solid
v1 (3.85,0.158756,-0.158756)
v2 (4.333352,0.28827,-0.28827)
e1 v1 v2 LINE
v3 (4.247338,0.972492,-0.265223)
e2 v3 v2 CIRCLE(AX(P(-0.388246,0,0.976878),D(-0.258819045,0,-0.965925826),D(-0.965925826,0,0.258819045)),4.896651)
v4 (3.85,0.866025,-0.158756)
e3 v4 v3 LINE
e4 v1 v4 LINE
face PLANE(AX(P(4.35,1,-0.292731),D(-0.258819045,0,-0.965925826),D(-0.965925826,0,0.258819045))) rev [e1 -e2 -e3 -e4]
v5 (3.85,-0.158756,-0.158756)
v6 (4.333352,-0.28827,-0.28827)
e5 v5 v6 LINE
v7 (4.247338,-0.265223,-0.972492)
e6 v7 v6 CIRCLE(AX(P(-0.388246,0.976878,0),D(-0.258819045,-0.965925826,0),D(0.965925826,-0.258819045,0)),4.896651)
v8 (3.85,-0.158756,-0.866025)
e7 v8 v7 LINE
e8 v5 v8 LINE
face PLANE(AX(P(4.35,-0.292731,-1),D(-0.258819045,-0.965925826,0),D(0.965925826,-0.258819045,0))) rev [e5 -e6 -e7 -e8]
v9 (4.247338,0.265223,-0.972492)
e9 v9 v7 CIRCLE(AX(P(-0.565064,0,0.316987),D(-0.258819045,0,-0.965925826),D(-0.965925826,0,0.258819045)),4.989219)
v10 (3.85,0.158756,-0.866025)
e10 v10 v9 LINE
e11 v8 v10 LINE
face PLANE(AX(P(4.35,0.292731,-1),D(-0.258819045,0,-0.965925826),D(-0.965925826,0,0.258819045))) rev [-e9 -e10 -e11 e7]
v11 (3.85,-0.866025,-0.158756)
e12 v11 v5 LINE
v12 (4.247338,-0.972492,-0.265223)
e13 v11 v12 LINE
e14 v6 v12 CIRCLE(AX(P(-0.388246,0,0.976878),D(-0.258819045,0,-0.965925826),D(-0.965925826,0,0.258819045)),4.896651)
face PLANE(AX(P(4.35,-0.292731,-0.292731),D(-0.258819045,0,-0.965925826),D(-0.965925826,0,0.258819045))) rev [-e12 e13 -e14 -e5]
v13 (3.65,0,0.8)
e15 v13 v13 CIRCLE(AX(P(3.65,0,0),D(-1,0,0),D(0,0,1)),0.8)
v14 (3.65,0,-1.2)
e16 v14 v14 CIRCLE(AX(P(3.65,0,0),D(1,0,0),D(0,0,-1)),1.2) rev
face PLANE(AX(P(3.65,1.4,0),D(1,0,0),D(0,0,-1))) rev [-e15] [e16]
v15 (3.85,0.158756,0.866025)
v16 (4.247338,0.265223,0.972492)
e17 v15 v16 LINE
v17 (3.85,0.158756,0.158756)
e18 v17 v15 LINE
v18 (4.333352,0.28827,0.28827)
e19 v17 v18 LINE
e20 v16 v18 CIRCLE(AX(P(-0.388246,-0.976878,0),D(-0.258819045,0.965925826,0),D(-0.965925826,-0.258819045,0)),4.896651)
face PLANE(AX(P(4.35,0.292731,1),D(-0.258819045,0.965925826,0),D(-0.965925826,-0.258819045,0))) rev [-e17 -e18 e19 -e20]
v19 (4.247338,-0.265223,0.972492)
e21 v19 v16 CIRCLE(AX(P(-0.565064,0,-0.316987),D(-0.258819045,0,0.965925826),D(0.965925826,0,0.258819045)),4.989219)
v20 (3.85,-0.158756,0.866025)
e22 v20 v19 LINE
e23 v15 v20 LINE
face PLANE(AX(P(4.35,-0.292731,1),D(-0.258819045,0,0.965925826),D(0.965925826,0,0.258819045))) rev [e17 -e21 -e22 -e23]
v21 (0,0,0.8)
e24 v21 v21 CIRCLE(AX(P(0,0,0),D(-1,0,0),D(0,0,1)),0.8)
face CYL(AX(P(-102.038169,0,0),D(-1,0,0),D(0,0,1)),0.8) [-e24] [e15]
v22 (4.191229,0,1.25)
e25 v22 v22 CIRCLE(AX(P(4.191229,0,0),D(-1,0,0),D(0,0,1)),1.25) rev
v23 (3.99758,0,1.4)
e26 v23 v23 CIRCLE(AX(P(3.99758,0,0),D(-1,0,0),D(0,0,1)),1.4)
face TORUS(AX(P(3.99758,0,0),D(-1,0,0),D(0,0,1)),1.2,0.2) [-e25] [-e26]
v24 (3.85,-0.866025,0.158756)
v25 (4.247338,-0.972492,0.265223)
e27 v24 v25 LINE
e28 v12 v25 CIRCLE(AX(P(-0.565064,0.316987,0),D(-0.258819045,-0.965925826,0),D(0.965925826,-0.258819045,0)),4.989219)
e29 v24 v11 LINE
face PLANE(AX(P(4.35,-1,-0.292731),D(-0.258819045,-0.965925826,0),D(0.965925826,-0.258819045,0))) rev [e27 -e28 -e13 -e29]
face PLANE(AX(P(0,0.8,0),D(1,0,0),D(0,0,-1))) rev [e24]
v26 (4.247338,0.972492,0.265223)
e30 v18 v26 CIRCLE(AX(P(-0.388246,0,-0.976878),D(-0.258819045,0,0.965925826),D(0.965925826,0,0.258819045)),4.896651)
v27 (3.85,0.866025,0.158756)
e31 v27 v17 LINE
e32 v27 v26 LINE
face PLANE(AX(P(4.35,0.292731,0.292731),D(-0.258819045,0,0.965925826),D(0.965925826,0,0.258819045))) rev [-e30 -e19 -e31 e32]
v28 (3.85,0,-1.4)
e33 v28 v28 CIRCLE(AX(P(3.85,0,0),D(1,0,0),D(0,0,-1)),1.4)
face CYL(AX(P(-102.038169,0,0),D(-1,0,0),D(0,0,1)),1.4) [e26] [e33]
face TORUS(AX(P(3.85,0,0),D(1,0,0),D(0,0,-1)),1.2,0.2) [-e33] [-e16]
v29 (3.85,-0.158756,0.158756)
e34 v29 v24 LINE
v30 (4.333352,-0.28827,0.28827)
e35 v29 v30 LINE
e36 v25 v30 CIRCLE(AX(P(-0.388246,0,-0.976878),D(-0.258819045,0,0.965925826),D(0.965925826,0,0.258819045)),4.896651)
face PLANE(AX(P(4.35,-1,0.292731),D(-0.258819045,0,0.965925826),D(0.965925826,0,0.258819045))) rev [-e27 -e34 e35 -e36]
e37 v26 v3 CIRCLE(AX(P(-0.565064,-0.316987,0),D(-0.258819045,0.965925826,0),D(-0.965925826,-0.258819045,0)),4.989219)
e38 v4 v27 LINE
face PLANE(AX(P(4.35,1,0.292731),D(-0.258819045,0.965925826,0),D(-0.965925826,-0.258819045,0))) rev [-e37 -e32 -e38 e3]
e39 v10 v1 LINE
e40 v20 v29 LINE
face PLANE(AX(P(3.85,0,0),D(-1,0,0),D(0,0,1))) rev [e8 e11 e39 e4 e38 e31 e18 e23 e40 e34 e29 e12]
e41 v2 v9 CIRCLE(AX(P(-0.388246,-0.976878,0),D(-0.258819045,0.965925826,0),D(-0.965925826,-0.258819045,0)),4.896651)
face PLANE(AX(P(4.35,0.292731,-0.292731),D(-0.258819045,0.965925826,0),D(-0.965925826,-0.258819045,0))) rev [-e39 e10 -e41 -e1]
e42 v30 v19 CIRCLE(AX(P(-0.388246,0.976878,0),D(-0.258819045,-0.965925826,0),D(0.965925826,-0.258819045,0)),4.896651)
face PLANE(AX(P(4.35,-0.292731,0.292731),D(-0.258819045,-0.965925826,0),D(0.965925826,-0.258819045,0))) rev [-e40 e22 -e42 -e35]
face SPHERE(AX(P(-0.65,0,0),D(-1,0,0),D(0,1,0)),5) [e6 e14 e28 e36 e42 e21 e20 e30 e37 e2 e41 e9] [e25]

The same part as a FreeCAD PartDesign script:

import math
import FreeCAD as App
import Part
import Sketcher


def edges_at(feature, points):
    """Names of the edges that pass closest to the given points."""
    edges = feature.Shape.Edges
    near = lambda p: min(range(len(edges)), key=lambda i: edges[i].distToShape(Part.Vertex(*p))[0])
    return sorted({f"Edge{near(p) + 1}" for p in points})


def add_polygon(sketch, points):
    """Adds a closed chain of lines whose ends are joined by coincident constraints."""
    first, n = sketch.GeometryCount, len(points)
    for a, b in zip(points, points[1:] + points[:1]):
        sketch.addGeometry(Part.LineSegment(App.Vector(*a, 0), App.Vector(*b, 0)), False)
    for i in range(n):
        sketch.addConstraint(Sketcher.Constraint("Coincident", first + i, 2, first + (i + 1) % n, 1))

doc = App.newDocument("Part")
body = doc.addObject("PartDesign::Body", "Body")

# Sketch on XY plane
sketch1 = body.newObject("Sketcher::SketchObject", "Sketch")
sketch1.AttachmentSupport = (doc.getObject("XY_Plane"), [""])
sketch1.MapMode = "FlatFace"
sketch1.addGeometry([
    Part.LineSegment(App.Vector(0, 0, 0), App.Vector(4.3, 0, 0)),  # 0
    Part.ArcOfCircle(Part.Circle(App.Vector(-0.7, 0, 0), App.Vector(0, 0, 1), 5), math.radians(0), math.radians(16.26)),  # 1
    Part.LineSegment(App.Vector(4.2, 1.4, 0), App.Vector(3.6, 1.4, 0)),  # 2
    Part.LineSegment(App.Vector(3.6, 1.4, 0), App.Vector(3.6, 0.8, 0)),  # 3
    Part.LineSegment(App.Vector(3.6, 0.8, 0), App.Vector(0, 0.8, 0)),  # 4
    Part.LineSegment(App.Vector(0, 0.8, 0), App.Vector(0, 0, 0)),  # 5
], False)
sketch1.addConstraint([
    Sketcher.Constraint("Coincident", 0, 2, 1, 1),
    Sketcher.Constraint("Coincident", 1, 2, 2, 1),
    Sketcher.Constraint("Coincident", 2, 2, 3, 1),
    Sketcher.Constraint("Coincident", 3, 2, 4, 1),
    Sketcher.Constraint("Coincident", 4, 2, 5, 1),
    Sketcher.Constraint("Coincident", 5, 2, 0, 1),
    Sketcher.Constraint("Horizontal", 0),
    Sketcher.Constraint("Horizontal", 2),
    Sketcher.Constraint("Vertical", 3),
    Sketcher.Constraint("Horizontal", 4),
    Sketcher.Constraint("Vertical", 5),
    Sketcher.Constraint("Coincident", 5, 2, -1, 1),
    Sketcher.Constraint("PointOnObject", 1, 3, -1),
    Sketcher.Constraint("Radius", 1, 5.0),
    Sketcher.Constraint("DistanceX", 2, 2, 2, 1, 0.5),
    Sketcher.Constraint("DistanceY", 3, 2, 3, 1, 0.6),
    Sketcher.Constraint("DistanceY", 5, 2, 5, 1, 0.8),
    Sketcher.Constraint("DistanceX", 0, 1, 0, 2, 4.35),
])
revolution = body.newObject("PartDesign::Revolution", "Revolution")
revolution.Profile = sketch1
revolution.ReferenceAxis = (sketch1, ["H_Axis"])
revolution.Angle = 360
doc.recompute()

fillet = body.newObject("PartDesign::Fillet", "Fillet")
fillet.Base = (revolution, edges_at(revolution, [(3.65, -1.4, 0), (4.15, -1.4, 0)]))
fillet.Radius = 0.2

# Sketch on YZ plane
sketch2 = body.newObject("Sketcher::SketchObject", "Sketch001")
sketch2.AttachmentSupport = (doc.getObject("YZ_Plane"), [""])
sketch2.MapMode = "FlatFace"
sketch2.AttachmentOffset = App.Placement(App.Vector(0, 0, 4.35), App.Rotation())
add_polygon(sketch2, [(1, -0.3), (1, 0.3), (0.3, 0.3), (0.3, 1), (-0.3, 1), (-0.3, 0.3), (-1, 0.3), (-1, -0.3), (-0.3, -0.3), (-0.3, -1), (0.3, -1), (0.3, -0.3)])  # lines 0-11
sketch2.addConstraint([
    Sketcher.Constraint("Vertical", 0),
    Sketcher.Constraint("Horizontal", 1),
    Sketcher.Constraint("Vertical", 2),
    Sketcher.Constraint("Horizontal", 3),
    Sketcher.Constraint("Vertical", 4),
    Sketcher.Constraint("Horizontal", 5),
    Sketcher.Constraint("Vertical", 6),
    Sketcher.Constraint("Horizontal", 7),
    Sketcher.Constraint("Vertical", 8),
    Sketcher.Constraint("Horizontal", 9),
    Sketcher.Constraint("Vertical", 10),
    Sketcher.Constraint("Horizontal", 11),
    Sketcher.Constraint("Symmetric", 0, 2, 6, 2, -1, 1),
    Sketcher.Constraint("Symmetric", 2, 2, 8, 2, -1, 1),
    Sketcher.Constraint("Symmetric", 4, 2, 10, 2, -1, 1),
    Sketcher.Constraint("Symmetric", 1, 2, 4, 2, -2),
    Sketcher.Constraint("Equal", 9, 0),
    Sketcher.Constraint("Equal", 11, 2),
    Sketcher.Constraint("DistanceX", -1, 1, 0, 2, 1.0),
    Sketcher.Constraint("DistanceX", 1, 2, 1, 1, 0.707269),
])
pocket1 = body.newObject("PartDesign::Pocket", "Pocket")
pocket1.Profile = sketch2
pocket1.Length = 0.5
pocket1.TaperAngle = -15

doc.recompute()
